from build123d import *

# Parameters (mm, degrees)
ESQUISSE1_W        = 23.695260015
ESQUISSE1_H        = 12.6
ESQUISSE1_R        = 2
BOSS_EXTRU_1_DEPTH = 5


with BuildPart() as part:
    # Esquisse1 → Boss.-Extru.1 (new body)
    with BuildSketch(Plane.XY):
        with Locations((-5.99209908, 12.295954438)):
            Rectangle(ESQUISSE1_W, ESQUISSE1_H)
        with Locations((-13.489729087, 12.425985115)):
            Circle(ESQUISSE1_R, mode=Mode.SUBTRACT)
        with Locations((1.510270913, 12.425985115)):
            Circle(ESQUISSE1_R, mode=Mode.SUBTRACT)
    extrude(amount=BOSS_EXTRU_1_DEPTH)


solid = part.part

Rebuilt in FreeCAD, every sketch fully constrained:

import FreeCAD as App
import Part
import Sketcher

V = App.Vector
Q = App.Units.Quantity

doc = App.newDocument("Part")
body = doc.addObject("PartDesign::Body", "Body")

# Sketch on XY plane
sketch1 = doc.addObject("Sketcher::SketchObject", "Sketch")
body.addObject(sketch1)
sketch1.AttachmentSupport = (doc.XY_Plane, [""])
sketch1.MapMode = "FlatFace"
sketch1.addGeometry([
    Part.LineSegment(V(-17.839729, 18.595954, 0), V(-17.839729, 5.995954, 0)),  # 0
    Part.LineSegment(V(-17.839729, 5.995954, 0), V(5.855531, 5.995954, 0)),  # 1
    Part.LineSegment(V(5.855531, 5.995954, 0), V(5.855531, 18.595954, 0)),  # 2
    Part.LineSegment(V(5.855531, 18.595954, 0), V(-17.839729, 18.595954, 0)),  # 3
    Part.Circle(V(-13.489729, 12.425985, 0), V(0, 0, 1), 2),  # 4
    Part.Circle(V(1.510271, 12.425985, 0), V(0, 0, 1), 2),  # 5
], False)
sketch1.addConstraint([
    Sketcher.Constraint("Coincident", 0, 2, 1, 1),
    Sketcher.Constraint("Coincident", 1, 2, 2, 1),
    Sketcher.Constraint("Coincident", 2, 2, 3, 1),
    Sketcher.Constraint("Coincident", 3, 2, 0, 1),
    Sketcher.Constraint("Vertical", 0),
    Sketcher.Constraint("Horizontal", 1),
    Sketcher.Constraint("Vertical", 2),
    Sketcher.Constraint("Horizontal", 3),
    Sketcher.Constraint("Equal", 4, 5),
    Sketcher.Constraint("Horizontal", 4, 3, 5, 3),
    Sketcher.Constraint("Diameter", 4, Q("4 mm")),
    Sketcher.Constraint("DistanceY", 0, 2, 0, 1, Q("12.6 mm")),
    Sketcher.Constraint("DistanceX", 4, 3, 5, 3, Q("15 mm")),
    Sketcher.Constraint("DistanceX", 0, 2, 4, 3, Q("4.35 mm")),
    Sketcher.Constraint("DistanceX", 1, 1, 1, 2, Q("23.69526 mm")),
    Sketcher.Constraint("DistanceX", 4, 3, -1, 1, Q("13.489729 mm")),
    Sketcher.Constraint("DistanceY", 0, 2, 4, 3, Q("6.430031 mm")),
    Sketcher.Constraint("DistanceY", -1, 1, 4, 3, Q("12.425985 mm")),
])
pad1 = doc.addObject("PartDesign::Pad", "Pad")
body.addObject(pad1)
pad1.Profile = sketch1
pad1.Length = 5

doc.recompute()
